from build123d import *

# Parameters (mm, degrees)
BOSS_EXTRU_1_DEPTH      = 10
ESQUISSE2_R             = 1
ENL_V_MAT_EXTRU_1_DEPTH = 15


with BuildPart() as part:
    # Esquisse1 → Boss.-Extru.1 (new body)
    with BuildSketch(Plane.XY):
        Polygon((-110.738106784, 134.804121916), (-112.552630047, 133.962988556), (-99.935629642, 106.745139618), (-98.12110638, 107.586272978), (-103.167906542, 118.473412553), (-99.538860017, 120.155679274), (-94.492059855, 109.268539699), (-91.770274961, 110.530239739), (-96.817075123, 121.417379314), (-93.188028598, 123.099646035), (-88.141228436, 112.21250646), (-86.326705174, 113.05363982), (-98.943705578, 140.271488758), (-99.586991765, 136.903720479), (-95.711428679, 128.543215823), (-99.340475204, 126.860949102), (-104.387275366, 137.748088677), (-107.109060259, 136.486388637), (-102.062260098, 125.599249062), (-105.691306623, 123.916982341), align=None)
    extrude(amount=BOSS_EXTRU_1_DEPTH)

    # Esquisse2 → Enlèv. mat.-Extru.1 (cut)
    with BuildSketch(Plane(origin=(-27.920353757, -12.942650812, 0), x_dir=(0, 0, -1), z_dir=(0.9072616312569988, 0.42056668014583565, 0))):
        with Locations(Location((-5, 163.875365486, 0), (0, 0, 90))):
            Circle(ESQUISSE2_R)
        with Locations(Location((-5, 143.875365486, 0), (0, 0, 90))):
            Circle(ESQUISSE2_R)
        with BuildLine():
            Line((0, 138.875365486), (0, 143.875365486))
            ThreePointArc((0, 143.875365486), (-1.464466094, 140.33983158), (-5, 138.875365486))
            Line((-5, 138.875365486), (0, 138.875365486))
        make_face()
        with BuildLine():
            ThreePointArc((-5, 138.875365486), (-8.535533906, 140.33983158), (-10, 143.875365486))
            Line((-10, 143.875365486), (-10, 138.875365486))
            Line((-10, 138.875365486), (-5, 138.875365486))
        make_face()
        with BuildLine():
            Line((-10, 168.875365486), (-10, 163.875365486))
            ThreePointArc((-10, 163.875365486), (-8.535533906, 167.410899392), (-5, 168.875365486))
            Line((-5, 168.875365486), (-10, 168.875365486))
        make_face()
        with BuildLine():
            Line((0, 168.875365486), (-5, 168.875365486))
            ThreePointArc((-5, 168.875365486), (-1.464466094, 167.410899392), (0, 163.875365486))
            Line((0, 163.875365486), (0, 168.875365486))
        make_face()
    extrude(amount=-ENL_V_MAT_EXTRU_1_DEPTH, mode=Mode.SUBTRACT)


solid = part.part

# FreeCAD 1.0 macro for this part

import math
import FreeCAD as App
import Part
import Sketcher

V = App.Vector
Q = App.Units.Quantity


def add_polygon(sketch, points):
    """Adds a closed chain of lines whose ends are joined by coincident constraints."""
    first, n = sketch.GeometryCount, len(points)
    for a, b in zip(points, points[1:] + points[:1]):
        sketch.addGeometry(Part.LineSegment(App.Vector(*a, 0), App.Vector(*b, 0)), False)
    for i in range(n):
        sketch.addConstraint(Sketcher.Constraint("Coincident", first + i, 2, first + (i + 1) % n, 1))

doc = App.newDocument("Part")
params = doc.addObject("Spreadsheet::Sheet", "Params")
for row, (alias, value) in enumerate([
    ("sketch1_length", "2 mm"),
    ("sketch1_length2", "30 mm"),
    ("sketch1_length3", "12 mm"),
    ("sketch1_length4", "4 mm"),
    ("sketch1_length5", "3 mm"),
    ("pad1_length", "10 mm"),
    ("sketch2_diameter", "2 mm"),
    ("sketch2_radius", "5 mm"),
    ("pocket1_length", "15 mm"),
], start=1):
    params.set(f"A{row}", alias)
    params.set(f"B{row}", "=" + value)
    params.setAlias(f"B{row}", alias)

body = doc.addObject("PartDesign::Body", "Body")

sketch1 = body.newObject("Sketcher::SketchObject", "Sketch")
sketch1.AttachmentSupport = (doc.getObject("XY_Plane"), [""])
sketch1.MapMode = "FlatFace"
add_polygon(sketch1, [(-110.7, 134.8), (-112.6, 134), (-99.9, 106.7), (-98.1, 107.6), (-103.2, 118.5), (-99.5, 120.2), (-94.5, 109.3), (-91.8, 110.5), (-96.8, 121.4), (-93.2, 123.1), (-88.1, 112.2), (-86.3, 113.1), (-98.9, 140.3), (-99.6, 136.9), (-95.7, 128.5), (-99.3, 126.9), (-104.4, 137.7), (-107.1, 136.5), (-102.1, 125.6), (-105.7, 123.9)])
sketch1.addConstraint(Sketcher.Constraint("Perpendicular", 0, 1))
sketch1.addConstraint(Sketcher.Constraint("Perpendicular", 1, 2))
sketch1.addConstraint(Sketcher.Constraint("Perpendicular", 2, 3))
sketch1.addConstraint(Sketcher.Constraint("Perpendicular", 3, 4))
sketch1.addConstraint(Sketcher.Constraint("Perpendicular", 4, 5))
sketch1.addConstraint(Sketcher.Constraint("Perpendicular", 5, 6))
sketch1.addConstraint(Sketcher.Constraint("Perpendicular", 6, 7))
sketch1.addConstraint(Sketcher.Constraint("Perpendicular", 7, 8))
sketch1.addConstraint(Sketcher.Constraint("Perpendicular", 8, 9))
sketch1.addConstraint(Sketcher.Constraint("Perpendicular", 9, 10))
sketch1.addConstraint(Sketcher.Constraint("Perpendicular", 10, 11))
sketch1.addConstraint(Sketcher.Constraint("Parallel", 11, 13))
sketch1.addConstraint(Sketcher.Constraint("Perpendicular", 13, 14))
sketch1.addConstraint(Sketcher.Constraint("Perpendicular", 14, 15))
sketch1.addConstraint(Sketcher.Constraint("Perpendicular", 15, 16))
sketch1.addConstraint(Sketcher.Constraint("Perpendicular", 16, 17))
sketch1.addConstraint(Sketcher.Constraint("Perpendicular", 17, 18))
sketch1.addConstraint(Sketcher.Constraint("Perpendicular", 18, 19))
sketch1.addConstraint(Sketcher.Constraint("Equal", 0, 2))
sketch1.addConstraint(Sketcher.Constraint("Equal", 3, 5))
sketch1.addConstraint(Sketcher.Constraint("Equal", 5, 7))
sketch1.addConstraint(Sketcher.Constraint("Equal", 4, 8))
sketch1.addConstraint(Sketcher.Constraint("Equal", 7, 9))
sketch1.addConstraint(Sketcher.Constraint("Equal", 2, 10))
sketch1.addConstraint(Sketcher.Constraint("Equal", 1, 11))
sketch1.addConstraint(Sketcher.Constraint("Equal", 8, 14))
sketch1.addConstraint(Sketcher.Constraint("Equal", 9, 15))
sketch1.addConstraint(Sketcher.Constraint("Equal", 6, 16))
sketch1.addConstraint(Sketcher.Constraint("Equal", 15, 17))
sketch1.addConstraint(Sketcher.Constraint("Equal", 14, 18))
sketch1.addConstraint(Sketcher.Constraint("Equal", 17, 19))
sketch1.addConstraint(Sketcher.Constraint("Distance", 0, Q("2 mm")))
sketch1.addConstraint(Sketcher.Constraint("Distance", 1, Q("30 mm")))
sketch1.addConstraint(Sketcher.Constraint("Distance", 3, Q("12 mm")))
sketch1.addConstraint(Sketcher.Constraint("Distance", 4, Q("4 mm")))
sketch1.addConstraint(Sketcher.Constraint("Distance", 6, Q("3 mm")))
sketch1.addConstraint(Sketcher.Constraint("DistanceX", 0, 2, 1, 2, Q("12.617 mm")))
sketch1.addConstraint(Sketcher.Constraint("DistanceY", 19, 2, 12, 2, Q("2.099599 mm")))
sketch1.addConstraint(Sketcher.Constraint("DistanceX", 0, 2, -1, 1, Q("112.55263 mm")))
sketch1.addConstraint(Sketcher.Constraint("DistanceY", -1, 1, 0, 2, Q("133.962989 mm")))
sketch1.setExpression("Constraints[51]", "Params.sketch1_length")
sketch1.setExpression("Constraints[52]", "Params.sketch1_length2")
sketch1.setExpression("Constraints[53]", "Params.sketch1_length3")
sketch1.setExpression("Constraints[54]", "Params.sketch1_length4")
sketch1.setExpression("Constraints[55]", "Params.sketch1_length5")
pad1 = body.newObject("PartDesign::Pad", "Pad")
pad1.Profile = sketch1
pad1.setExpression("Length", "Params.pad1_length")

sketch2 = body.newObject("Sketcher::SketchObject", "Sketch001")
sketch2.Placement = App.Placement(V(-27.920354, -12.942651, 0), App.Rotation(V(0, 0, -1), V(-0.42056668, 0.907261631, 0), V(0.907261631, 0.42056668, 0), "ZXY"))
sketch2.addGeometry(Part.Circle(V(-5, 163.9, 0), V(0, 0, 1), 1), False)
sketch2.addGeometry(Part.Circle(V(-5, 143.9, 0), V(0, 0, 1), 1), False)
sketch2.addGeometry(Part.LineSegment(V(0, 138.9, 0), V(0, 143.9, 0)), False)
sketch2.addGeometry(Part.ArcOfCircle(Part.Circle(V(-5, 143.9, 0), V(0, 0, 1), 5), math.radians(-90), math.radians(0)), False)
sketch2.addGeometry(Part.LineSegment(V(-5, 138.9, 0), V(0, 138.9, 0)), False)
sketch2.addGeometry(Part.ArcOfCircle(Part.Circle(V(-5, 143.9, 0), V(0, 0, 1), 5), math.radians(180), math.radians(270)), False)
sketch2.addGeometry(Part.LineSegment(V(-10, 143.9, 0), V(-10, 138.9, 0)), False)
sketch2.addGeometry(Part.LineSegment(V(-10, 138.9, 0), V(-5, 138.9, 0)), False)
sketch2.addGeometry(Part.LineSegment(V(-10, 168.9, 0), V(-10, 163.9, 0)), False)
sketch2.addGeometry(Part.ArcOfCircle(Part.Circle(V(-5, 163.9, 0), V(0, 0, 1), 5), math.radians(90), math.radians(180)), False)
sketch2.addGeometry(Part.LineSegment(V(-5, 168.9, 0), V(-10, 168.9, 0)), False)
sketch2.addGeometry(Part.LineSegment(V(0, 168.9, 0), V(-5, 168.9, 0)), False)
sketch2.addGeometry(Part.ArcOfCircle(Part.Circle(V(-5, 163.9, 0), V(0, 0, 1), 5), math.radians(0), math.radians(90)), False)
sketch2.addGeometry(Part.LineSegment(V(0, 163.9, 0), V(0, 168.9, 0)), False)
sketch2.addConstraint(Sketcher.Constraint("Tangent", 2, 2, 3, 2))
sketch2.addConstraint(Sketcher.Constraint("Tangent", 3, 1, 4, 1))
sketch2.addConstraint(Sketcher.Constraint("Coincident", 4, 2, 2, 1))
sketch2.addConstraint(Sketcher.Constraint("Tangent", 5, 1, 6, 1))
sketch2.addConstraint(Sketcher.Constraint("Coincident", 6, 2, 7, 1))
sketch2.addConstraint(Sketcher.Constraint("Tangent", 7, 2, 5, 2))
sketch2.addConstraint(Sketcher.Constraint("Tangent", 8, 2, 9, 2))
sketch2.addConstraint(Sketcher.Constraint("Tangent", 9, 1, 10, 1))
sketch2.addConstraint(Sketcher.Constraint("Coincident", 10, 2, 8, 1))
sketch2.addConstraint(Sketcher.Constraint("Tangent", 11, 2, 12, 2))
sketch2.addConstraint(Sketcher.Constraint("Tangent", 12, 1, 13, 1))
sketch2.addConstraint(Sketcher.Constraint("Coincident", 13, 2, 11, 1))
sketch2.addConstraint(Sketcher.Constraint("Vertical", 2))
sketch2.addConstraint(Sketcher.Constraint("Horizontal", 4))
sketch2.addConstraint(Sketcher.Constraint("Vertical", 6))
sketch2.addConstraint(Sketcher.Constraint("Horizontal", 7))
sketch2.addConstraint(Sketcher.Constraint("Vertical", 8))
sketch2.addConstraint(Sketcher.Constraint("Horizontal", 10))
sketch2.addConstraint(Sketcher.Constraint("Horizontal", 11))
sketch2.addConstraint(Sketcher.Constraint("Vertical", 13))
sketch2.addConstraint(Sketcher.Constraint("Coincident", 3, 3, 1, 3))
sketch2.addConstraint(Sketcher.Constraint("Coincident", 5, 3, 1, 3))
sketch2.addConstraint(Sketcher.Constraint("Coincident", 9, 3, 0, 3))
sketch2.addConstraint(Sketcher.Constraint("Coincident", 12, 3, 0, 3))
sketch2.addConstraint(Sketcher.Constraint("Equal", 0, 1))
sketch2.addConstraint(Sketcher.Constraint("Equal", 3, 5))
sketch2.addConstraint(Sketcher.Constraint("Equal", 5, 9))
sketch2.addConstraint(Sketcher.Constraint("Equal", 9, 12))
sketch2.addConstraint(Sketcher.Constraint("PointOnObject", 2, 2, -2))
sketch2.addConstraint(Sketcher.Constraint("PointOnObject", 12, 1, -2))
sketch2.addConstraint(Sketcher.Constraint("Diameter", 0, Q("2 mm")))
sketch2.addConstraint(Sketcher.Constraint("Radius", 3, Q("5 mm")))
sketch2.addConstraint(Sketcher.Constraint("DistanceY", 1, 3, 0, 3, Q("20 mm")))
sketch2.addConstraint(Sketcher.Constraint("DistanceY", -1, 1, 0, 3, Q("163.875365 mm")))
sketch2.setExpression("Constraints[30]", "Params.sketch2_diameter")
sketch2.setExpression("Constraints[31]", "Params.sketch2_radius")
pocket1 = body.newObject("PartDesign::Pocket", "Pocket")
pocket1.Profile = sketch2
pocket1.setExpression("Length", "Params.pocket1_length")

doc.recompute()
